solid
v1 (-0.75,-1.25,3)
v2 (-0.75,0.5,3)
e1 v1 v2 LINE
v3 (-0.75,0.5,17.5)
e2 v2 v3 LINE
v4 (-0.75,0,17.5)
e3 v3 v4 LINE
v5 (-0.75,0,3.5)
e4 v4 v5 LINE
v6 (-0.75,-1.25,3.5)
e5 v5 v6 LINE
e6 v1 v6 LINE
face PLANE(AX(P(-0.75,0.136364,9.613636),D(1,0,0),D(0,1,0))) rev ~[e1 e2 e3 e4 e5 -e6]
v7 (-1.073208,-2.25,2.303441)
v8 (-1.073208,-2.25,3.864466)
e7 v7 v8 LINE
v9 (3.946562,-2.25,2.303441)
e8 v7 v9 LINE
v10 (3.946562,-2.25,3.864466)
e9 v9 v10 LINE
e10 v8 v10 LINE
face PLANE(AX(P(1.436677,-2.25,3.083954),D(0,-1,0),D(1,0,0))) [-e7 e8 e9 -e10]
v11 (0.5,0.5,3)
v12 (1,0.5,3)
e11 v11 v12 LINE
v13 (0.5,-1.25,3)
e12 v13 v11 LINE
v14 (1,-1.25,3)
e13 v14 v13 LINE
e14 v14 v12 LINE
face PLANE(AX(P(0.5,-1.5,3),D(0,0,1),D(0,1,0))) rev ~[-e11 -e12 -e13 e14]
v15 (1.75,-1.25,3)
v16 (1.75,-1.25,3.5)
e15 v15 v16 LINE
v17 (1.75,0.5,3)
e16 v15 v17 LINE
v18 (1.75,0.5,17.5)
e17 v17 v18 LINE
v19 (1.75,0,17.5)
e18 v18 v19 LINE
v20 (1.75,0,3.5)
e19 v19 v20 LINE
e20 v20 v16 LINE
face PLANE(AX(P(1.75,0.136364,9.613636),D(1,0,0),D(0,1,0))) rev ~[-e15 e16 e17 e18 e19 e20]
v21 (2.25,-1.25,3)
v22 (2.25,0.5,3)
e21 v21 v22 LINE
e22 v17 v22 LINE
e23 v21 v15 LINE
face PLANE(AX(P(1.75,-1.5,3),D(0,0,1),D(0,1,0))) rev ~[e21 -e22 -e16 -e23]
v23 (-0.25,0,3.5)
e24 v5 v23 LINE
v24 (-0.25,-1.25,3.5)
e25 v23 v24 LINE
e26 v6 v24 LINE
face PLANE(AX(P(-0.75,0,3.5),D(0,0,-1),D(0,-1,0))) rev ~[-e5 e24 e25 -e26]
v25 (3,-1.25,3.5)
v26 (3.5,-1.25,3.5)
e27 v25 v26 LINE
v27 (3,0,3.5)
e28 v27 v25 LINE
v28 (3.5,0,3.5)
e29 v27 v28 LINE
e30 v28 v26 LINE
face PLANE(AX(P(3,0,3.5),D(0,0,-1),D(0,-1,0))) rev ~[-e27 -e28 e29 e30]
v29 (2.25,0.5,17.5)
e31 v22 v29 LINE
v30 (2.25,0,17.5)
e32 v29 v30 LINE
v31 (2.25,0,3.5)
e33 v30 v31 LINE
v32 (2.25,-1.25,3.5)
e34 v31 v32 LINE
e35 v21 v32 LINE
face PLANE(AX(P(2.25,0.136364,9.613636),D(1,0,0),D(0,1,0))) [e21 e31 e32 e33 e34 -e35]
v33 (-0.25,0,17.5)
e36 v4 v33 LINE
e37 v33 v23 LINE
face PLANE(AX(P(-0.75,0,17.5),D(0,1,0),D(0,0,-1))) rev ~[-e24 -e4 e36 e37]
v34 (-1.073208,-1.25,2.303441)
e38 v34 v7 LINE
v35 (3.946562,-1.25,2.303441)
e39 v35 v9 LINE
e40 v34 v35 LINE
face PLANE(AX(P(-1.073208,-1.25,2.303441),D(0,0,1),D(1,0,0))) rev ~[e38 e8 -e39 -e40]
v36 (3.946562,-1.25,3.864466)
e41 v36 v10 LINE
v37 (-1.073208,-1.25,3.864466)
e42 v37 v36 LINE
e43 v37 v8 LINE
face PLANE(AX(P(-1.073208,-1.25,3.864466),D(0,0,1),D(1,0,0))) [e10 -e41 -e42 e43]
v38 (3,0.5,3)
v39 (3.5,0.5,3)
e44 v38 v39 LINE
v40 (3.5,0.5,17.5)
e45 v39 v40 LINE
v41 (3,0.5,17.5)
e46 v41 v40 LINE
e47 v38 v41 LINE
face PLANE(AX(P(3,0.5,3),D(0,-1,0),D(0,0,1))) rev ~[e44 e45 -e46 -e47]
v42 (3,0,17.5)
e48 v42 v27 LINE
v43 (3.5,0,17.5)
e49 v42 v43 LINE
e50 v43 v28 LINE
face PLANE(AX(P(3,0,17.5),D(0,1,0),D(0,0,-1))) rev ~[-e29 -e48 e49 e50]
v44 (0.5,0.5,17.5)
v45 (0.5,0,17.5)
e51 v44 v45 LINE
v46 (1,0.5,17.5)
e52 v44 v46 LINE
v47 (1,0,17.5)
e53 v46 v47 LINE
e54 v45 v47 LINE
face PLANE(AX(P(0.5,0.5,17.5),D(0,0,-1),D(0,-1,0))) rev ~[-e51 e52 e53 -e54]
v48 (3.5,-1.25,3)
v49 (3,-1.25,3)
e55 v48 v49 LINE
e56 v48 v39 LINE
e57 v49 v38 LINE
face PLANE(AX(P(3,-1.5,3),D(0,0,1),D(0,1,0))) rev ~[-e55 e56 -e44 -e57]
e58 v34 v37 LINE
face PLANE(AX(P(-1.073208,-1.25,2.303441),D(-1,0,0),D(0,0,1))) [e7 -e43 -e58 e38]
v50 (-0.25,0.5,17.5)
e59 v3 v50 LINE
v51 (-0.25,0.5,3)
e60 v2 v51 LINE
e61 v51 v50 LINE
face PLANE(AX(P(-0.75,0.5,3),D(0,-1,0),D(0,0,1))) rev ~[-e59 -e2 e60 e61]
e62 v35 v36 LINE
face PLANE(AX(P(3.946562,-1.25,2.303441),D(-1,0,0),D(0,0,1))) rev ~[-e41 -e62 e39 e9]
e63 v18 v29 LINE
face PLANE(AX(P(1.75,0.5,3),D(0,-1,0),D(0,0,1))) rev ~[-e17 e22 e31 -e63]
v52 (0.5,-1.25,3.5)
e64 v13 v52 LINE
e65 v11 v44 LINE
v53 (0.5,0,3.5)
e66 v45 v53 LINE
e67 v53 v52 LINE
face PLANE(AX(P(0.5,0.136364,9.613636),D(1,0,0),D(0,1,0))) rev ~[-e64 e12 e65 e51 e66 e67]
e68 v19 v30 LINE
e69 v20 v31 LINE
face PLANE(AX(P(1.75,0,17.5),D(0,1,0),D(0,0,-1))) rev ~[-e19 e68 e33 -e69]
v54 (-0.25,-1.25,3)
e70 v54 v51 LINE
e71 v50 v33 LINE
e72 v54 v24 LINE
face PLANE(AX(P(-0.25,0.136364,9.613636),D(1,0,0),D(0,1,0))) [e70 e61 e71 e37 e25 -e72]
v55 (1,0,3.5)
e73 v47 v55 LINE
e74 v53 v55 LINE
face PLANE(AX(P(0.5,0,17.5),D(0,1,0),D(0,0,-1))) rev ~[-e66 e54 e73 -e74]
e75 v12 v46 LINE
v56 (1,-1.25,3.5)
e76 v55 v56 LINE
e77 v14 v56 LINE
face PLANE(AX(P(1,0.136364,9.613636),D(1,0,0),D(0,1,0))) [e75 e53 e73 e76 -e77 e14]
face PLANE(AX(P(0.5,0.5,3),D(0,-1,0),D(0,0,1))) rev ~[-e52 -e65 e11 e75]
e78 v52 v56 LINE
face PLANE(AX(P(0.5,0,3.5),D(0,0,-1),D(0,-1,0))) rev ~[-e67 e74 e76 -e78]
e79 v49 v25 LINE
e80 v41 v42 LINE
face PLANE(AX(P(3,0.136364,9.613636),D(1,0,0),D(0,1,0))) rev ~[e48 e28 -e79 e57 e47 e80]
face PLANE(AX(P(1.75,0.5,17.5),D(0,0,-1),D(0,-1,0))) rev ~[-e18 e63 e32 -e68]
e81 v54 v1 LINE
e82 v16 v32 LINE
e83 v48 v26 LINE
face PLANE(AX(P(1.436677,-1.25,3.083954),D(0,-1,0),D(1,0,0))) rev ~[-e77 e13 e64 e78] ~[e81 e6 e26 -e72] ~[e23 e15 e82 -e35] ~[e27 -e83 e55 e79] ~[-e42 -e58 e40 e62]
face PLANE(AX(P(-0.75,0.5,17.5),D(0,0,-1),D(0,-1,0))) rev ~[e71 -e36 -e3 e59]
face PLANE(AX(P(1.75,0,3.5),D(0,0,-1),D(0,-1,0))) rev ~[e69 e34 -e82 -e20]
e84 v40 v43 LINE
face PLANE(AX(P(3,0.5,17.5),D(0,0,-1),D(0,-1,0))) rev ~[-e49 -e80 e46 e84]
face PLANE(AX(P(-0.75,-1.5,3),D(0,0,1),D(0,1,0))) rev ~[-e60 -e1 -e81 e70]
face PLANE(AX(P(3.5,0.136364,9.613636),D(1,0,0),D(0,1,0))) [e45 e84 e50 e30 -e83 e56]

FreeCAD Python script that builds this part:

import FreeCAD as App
import Part
import Sketcher
Q = App.Units.Quantity

doc = App.newDocument("Part")
params = doc.addObject("Spreadsheet::Sheet", "Params")
for row, (alias, value) in enumerate([
    ("pad1_length", "1 mm"),
    ("sketch2_width", "2 mm"),
    ("sketch2_height", "14 mm"),
    ("sketch2_width2", "0.5 mm"),
    ("pad2_length", "0.5 mm"),
    ("sketch3_width", "2 mm"),
    ("sketch3_height", "14 mm"),
    ("sketch3_width2", "0.5 mm"),
    ("pad3_length", "0.5 mm"),
    ("sketch4_width", "2 mm"),
    ("sketch4_height", "14 mm"),
    ("sketch4_width2", "0.5 mm"),
    ("pad4_length", "0.5 mm"),
    ("sketch5_width", "2 mm"),
    ("sketch5_height", "14 mm"),
    ("sketch5_width2", "0.5 mm"),
    ("pad5_length", "0.5 mm"),
], start=1):
    params.set(f"A{row}", alias)
    params.set(f"B{row}", "=" + value)
    params.setAlias(f"B{row}", alias)

body = doc.addObject("PartDesign::Body", "Body")

sketch1 = body.newObject("Sketcher::SketchObject", "Sketch")
sketch1.AttachmentSupport = (doc.getObject("XZ_Plane"), [""])
sketch1.MapMode = "FlatFace"
sketch1.AttachmentOffset = App.Placement(App.Vector(0, 0, 1.25), App.Rotation())
sketch1.addGeometry([
    Part.LineSegment(App.Vector(-1.073208, 3.864466, 0), App.Vector(-1.073208, 2.303441, 0)),
    Part.LineSegment(App.Vector(-1.073208, 2.303441, 0), App.Vector(3.946562, 2.303441, 0)),
    Part.LineSegment(App.Vector(3.946562, 2.303441, 0), App.Vector(3.946562, 3.864466, 0)),
    Part.LineSegment(App.Vector(3.946562, 3.864466, 0), App.Vector(-1.073208, 3.864466, 0)),
], False)
sketch1.addConstraint([
    Sketcher.Constraint("Coincident", 0, 2, 1, 1),
    Sketcher.Constraint("Coincident", 1, 2, 2, 1),
    Sketcher.Constraint("Coincident", 2, 2, 3, 1),
    Sketcher.Constraint("Coincident", 3, 2, 0, 1),
    Sketcher.Constraint("Vertical", 0),
    Sketcher.Constraint("Horizontal", 1),
    Sketcher.Constraint("Vertical", 2),
    Sketcher.Constraint("Horizontal", 3),
    Sketcher.Constraint("DistanceX", 1, 1, 1, 2, Q("5.019769 mm")),
    Sketcher.Constraint("DistanceY", 0, 2, 0, 1, Q("1.561025 mm")),
    Sketcher.Constraint("DistanceY", -1, 1, 0, 2, Q("2.303441 mm")),
    Sketcher.Constraint("DistanceX", -1, 1, 1, 2, Q("3.946562 mm")),
])
pad1 = body.newObject("PartDesign::Pad", "Pad")
pad1.Profile = sketch1
pad1.setExpression("Length", "Params.pad1_length")

sketch2 = body.newObject("Sketcher::SketchObject", "Sketch001")
sketch2.AttachmentSupport = (doc.getObject("YZ_Plane"), [""])
sketch2.MapMode = "FlatFace"
sketch2.AttachmentOffset = App.Placement(App.Vector(0, 0, -0.75), App.Rotation())
sketch2.addGeometry([
    Part.LineSegment(App.Vector(-1.5, 3, 0), App.Vector(0.5, 3, 0)),
    Part.LineSegment(App.Vector(0.5, 3, 0), App.Vector(0.5, 17.5, 0)),
    Part.LineSegment(App.Vector(0.5, 17.5, 0), App.Vector(0, 17.5, 0)),
    Part.LineSegment(App.Vector(0, 17.5, 0), App.Vector(0, 3.5, 0)),
    Part.LineSegment(App.Vector(0, 3.5, 0), App.Vector(-1.5, 3.5, 0)),
    Part.LineSegment(App.Vector(-1.5, 3.5, 0), App.Vector(-1.5, 3, 0)),
], False)
sketch2.addConstraint([
    Sketcher.Constraint("Coincident", 0, 2, 1, 1),
    Sketcher.Constraint("Coincident", 1, 2, 2, 1),
    Sketcher.Constraint("Coincident", 2, 2, 3, 1),
    Sketcher.Constraint("Coincident", 3, 2, 4, 1),
    Sketcher.Constraint("Coincident", 4, 2, 5, 1),
    Sketcher.Constraint("Coincident", 5, 2, 0, 1),
    Sketcher.Constraint("Horizontal", 0),
    Sketcher.Constraint("Vertical", 1),
    Sketcher.Constraint("Horizontal", 2),
    Sketcher.Constraint("Vertical", 3),
    Sketcher.Constraint("Horizontal", 4),
    Sketcher.Constraint("Vertical", 5),
    Sketcher.Constraint("PointOnObject", 2, 2, -2),
    Sketcher.Constraint("Equal", 2, 5),
    Sketcher.Constraint("DistanceX", 0, 1, 0, 2, Q("2 mm")),
    Sketcher.Constraint("DistanceY", 3, 2, 3, 1, Q("14 mm")),
    Sketcher.Constraint("DistanceX", 2, 2, 2, 1, Q("0.5 mm")),
    Sketcher.Constraint("DistanceY", -1, 1, 0, 2, Q("3 mm")),
])
sketch2.setExpression("Constraints[14]", "Params.sketch2_width")
sketch2.setExpression("Constraints[15]", "Params.sketch2_height")
sketch2.setExpression("Constraints[16]", "Params.sketch2_width2")
pad2 = body.newObject("PartDesign::Pad", "Pad001")
pad2.Profile = sketch2
pad2.setExpression("Length", "Params.pad2_length")

sketch3 = body.newObject("Sketcher::SketchObject", "Sketch002")
sketch3.AttachmentSupport = (doc.getObject("YZ_Plane"), [""])
sketch3.MapMode = "FlatFace"
sketch3.AttachmentOffset = App.Placement(App.Vector(0, 0, 0.5), App.Rotation())
sketch3.addGeometry([
    Part.LineSegment(App.Vector(-1.5, 3, 0), App.Vector(0.5, 3, 0)),
    Part.LineSegment(App.Vector(0.5, 3, 0), App.Vector(0.5, 17.5, 0)),
    Part.LineSegment(App.Vector(0.5, 17.5, 0), App.Vector(0, 17.5, 0)),
    Part.LineSegment(App.Vector(0, 17.5, 0), App.Vector(0, 3.5, 0)),
    Part.LineSegment(App.Vector(0, 3.5, 0), App.Vector(-1.5, 3.5, 0)),
    Part.LineSegment(App.Vector(-1.5, 3.5, 0), App.Vector(-1.5, 3, 0)),
], False)
sketch3.addConstraint([
    Sketcher.Constraint("Coincident", 0, 2, 1, 1),
    Sketcher.Constraint("Coincident", 1, 2, 2, 1),
    Sketcher.Constraint("Coincident", 2, 2, 3, 1),
    Sketcher.Constraint("Coincident", 3, 2, 4, 1),
    Sketcher.Constraint("Coincident", 4, 2, 5, 1),
    Sketcher.Constraint("Coincident", 5, 2, 0, 1),
    Sketcher.Constraint("Horizontal", 0),
    Sketcher.Constraint("Vertical", 1),
    Sketcher.Constraint("Horizontal", 2),
    Sketcher.Constraint("Vertical", 3),
    Sketcher.Constraint("Horizontal", 4),
    Sketcher.Constraint("Vertical", 5),
    Sketcher.Constraint("PointOnObject", 2, 2, -2),
    Sketcher.Constraint("Equal", 2, 5),
    Sketcher.Constraint("DistanceX", 0, 1, 0, 2, Q("2 mm")),
    Sketcher.Constraint("DistanceY", 3, 2, 3, 1, Q("14 mm")),
    Sketcher.Constraint("DistanceX", 2, 2, 2, 1, Q("0.5 mm")),
    Sketcher.Constraint("DistanceY", -1, 1, 0, 2, Q("3 mm")),
])
sketch3.setExpression("Constraints[14]", "Params.sketch3_width")
sketch3.setExpression("Constraints[15]", "Params.sketch3_height")
sketch3.setExpression("Constraints[16]", "Params.sketch3_width2")
pad3 = body.newObject("PartDesign::Pad", "Pad002")
pad3.Profile = sketch3
pad3.setExpression("Length", "Params.pad3_length")

sketch4 = body.newObject("Sketcher::SketchObject", "Sketch003")
sketch4.AttachmentSupport = (doc.getObject("YZ_Plane"), [""])
sketch4.MapMode = "FlatFace"
sketch4.AttachmentOffset = App.Placement(App.Vector(0, 0, 1.75), App.Rotation())
sketch4.addGeometry([
    Part.LineSegment(App.Vector(-1.5, 3, 0), App.Vector(0.5, 3, 0)),
    Part.LineSegment(App.Vector(0.5, 3, 0), App.Vector(0.5, 17.5, 0)),
    Part.LineSegment(App.Vector(0.5, 17.5, 0), App.Vector(0, 17.5, 0)),
    Part.LineSegment(App.Vector(0, 17.5, 0), App.Vector(0, 3.5, 0)),
    Part.LineSegment(App.Vector(0, 3.5, 0), App.Vector(-1.5, 3.5, 0)),
    Part.LineSegment(App.Vector(-1.5, 3.5, 0), App.Vector(-1.5, 3, 0)),
], False)
sketch4.addConstraint([
    Sketcher.Constraint("Coincident", 0, 2, 1, 1),
    Sketcher.Constraint("Coincident", 1, 2, 2, 1),
    Sketcher.Constraint("Coincident", 2, 2, 3, 1),
    Sketcher.Constraint("Coincident", 3, 2, 4, 1),
    Sketcher.Constraint("Coincident", 4, 2, 5, 1),
    Sketcher.Constraint("Coincident", 5, 2, 0, 1),
    Sketcher.Constraint("Horizontal", 0),
    Sketcher.Constraint("Vertical", 1),
    Sketcher.Constraint("Horizontal", 2),
    Sketcher.Constraint("Vertical", 3),
    Sketcher.Constraint("Horizontal", 4),
    Sketcher.Constraint("Vertical", 5),
    Sketcher.Constraint("PointOnObject", 2, 2, -2),
    Sketcher.Constraint("Equal", 2, 5),
    Sketcher.Constraint("DistanceX", 0, 1, 0, 2, Q("2 mm")),
    Sketcher.Constraint("DistanceY", 3, 2, 3, 1, Q("14 mm")),
    Sketcher.Constraint("DistanceX", 2, 2, 2, 1, Q("0.5 mm")),
    Sketcher.Constraint("DistanceY", -1, 1, 0, 2, Q("3 mm")),
])
sketch4.setExpression("Constraints[14]", "Params.sketch4_width")
sketch4.setExpression("Constraints[15]", "Params.sketch4_height")
sketch4.setExpression("Constraints[16]", "Params.sketch4_width2")
pad4 = body.newObject("PartDesign::Pad", "Pad003")
pad4.Profile = sketch4
pad4.setExpression("Length", "Params.pad4_length")

sketch5 = body.newObject("Sketcher::SketchObject", "Sketch004")
sketch5.AttachmentSupport = (doc.getObject("YZ_Plane"), [""])
sketch5.MapMode = "FlatFace"
sketch5.AttachmentOffset = App.Placement(App.Vector(0, 0, 3), App.Rotation())
sketch5.addGeometry([
    Part.LineSegment(App.Vector(-1.5, 3, 0), App.Vector(0.5, 3, 0)),
    Part.LineSegment(App.Vector(0.5, 3, 0), App.Vector(0.5, 17.5, 0)),
    Part.LineSegment(App.Vector(0.5, 17.5, 0), App.Vector(0, 17.5, 0)),
    Part.LineSegment(App.Vector(0, 17.5, 0), App.Vector(0, 3.5, 0)),
    Part.LineSegment(App.Vector(0, 3.5, 0), App.Vector(-1.5, 3.5, 0)),
    Part.LineSegment(App.Vector(-1.5, 3.5, 0), App.Vector(-1.5, 3, 0)),
], False)
sketch5.addConstraint([
    Sketcher.Constraint("Coincident", 0, 2, 1, 1),
    Sketcher.Constraint("Coincident", 1, 2, 2, 1),
    Sketcher.Constraint("Coincident", 2, 2, 3, 1),
    Sketcher.Constraint("Coincident", 3, 2, 4, 1),
    Sketcher.Constraint("Coincident", 4, 2, 5, 1),
    Sketcher.Constraint("Coincident", 5, 2, 0, 1),
    Sketcher.Constraint("Horizontal", 0),
    Sketcher.Constraint("Vertical", 1),
    Sketcher.Constraint("Horizontal", 2),
    Sketcher.Constraint("Vertical", 3),
    Sketcher.Constraint("Horizontal", 4),
    Sketcher.Constraint("Vertical", 5),
    Sketcher.Constraint("PointOnObject", 2, 2, -2),
    Sketcher.Constraint("Equal", 2, 5),
    Sketcher.Constraint("DistanceX", 0, 1, 0, 2, Q("2 mm")),
    Sketcher.Constraint("DistanceY", 3, 2, 3, 1, Q("14 mm")),
    Sketcher.Constraint("DistanceX", 2, 2, 2, 1, Q("0.5 mm")),
    Sketcher.Constraint("DistanceY", -1, 1, 0, 2, Q("3 mm")),
])
sketch5.setExpression("Constraints[14]", "Params.sketch5_width")
sketch5.setExpression("Constraints[15]", "Params.sketch5_height")
sketch5.setExpression("Constraints[16]", "Params.sketch5_width2")
pad5 = body.newObject("PartDesign::Pad", "Pad004")
pad5.Profile = sketch5
pad5.setExpression("Length", "Params.pad5_length")

doc.recompute()
